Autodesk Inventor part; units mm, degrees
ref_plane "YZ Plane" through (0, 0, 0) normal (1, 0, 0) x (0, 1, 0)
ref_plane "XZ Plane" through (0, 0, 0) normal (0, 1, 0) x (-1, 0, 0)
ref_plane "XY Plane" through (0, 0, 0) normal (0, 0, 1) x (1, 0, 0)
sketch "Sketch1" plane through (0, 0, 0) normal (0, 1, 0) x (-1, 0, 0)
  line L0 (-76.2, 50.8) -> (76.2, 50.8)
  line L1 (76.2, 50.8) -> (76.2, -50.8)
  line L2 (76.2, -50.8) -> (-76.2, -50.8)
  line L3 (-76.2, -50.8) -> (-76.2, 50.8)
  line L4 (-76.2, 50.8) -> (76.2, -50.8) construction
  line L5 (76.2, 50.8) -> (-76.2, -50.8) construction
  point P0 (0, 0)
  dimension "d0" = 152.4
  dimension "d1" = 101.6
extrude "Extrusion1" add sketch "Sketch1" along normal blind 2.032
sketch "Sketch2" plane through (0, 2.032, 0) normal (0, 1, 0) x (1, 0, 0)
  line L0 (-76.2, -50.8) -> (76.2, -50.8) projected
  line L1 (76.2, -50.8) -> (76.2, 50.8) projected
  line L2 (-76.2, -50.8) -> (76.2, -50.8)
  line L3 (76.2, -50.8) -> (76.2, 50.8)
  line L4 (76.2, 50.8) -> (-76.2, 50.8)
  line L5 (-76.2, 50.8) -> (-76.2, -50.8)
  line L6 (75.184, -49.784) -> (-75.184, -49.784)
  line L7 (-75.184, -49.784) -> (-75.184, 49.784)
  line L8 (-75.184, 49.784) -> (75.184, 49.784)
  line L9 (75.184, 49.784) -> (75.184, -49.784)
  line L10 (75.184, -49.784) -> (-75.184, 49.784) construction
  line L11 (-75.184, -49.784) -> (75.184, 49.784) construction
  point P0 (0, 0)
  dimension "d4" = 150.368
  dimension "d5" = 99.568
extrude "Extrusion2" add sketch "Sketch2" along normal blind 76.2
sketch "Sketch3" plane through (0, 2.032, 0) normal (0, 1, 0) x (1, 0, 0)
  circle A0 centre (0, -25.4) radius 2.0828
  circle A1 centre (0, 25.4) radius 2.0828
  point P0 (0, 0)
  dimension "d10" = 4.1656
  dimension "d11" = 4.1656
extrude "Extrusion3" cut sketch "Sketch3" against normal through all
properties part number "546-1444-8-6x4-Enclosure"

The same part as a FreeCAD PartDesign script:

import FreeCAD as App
import Part
import Sketcher
from FreeCAD import Vector
Q = App.Units.Quantity

doc = App.newDocument("Part")
body = doc.addObject("PartDesign::Body", "Body")

sketch1 = body.newObject("Sketcher::SketchObject", "Sketch")
sketch1.AttachmentSupport = (doc.getObject("XZ_Plane"), [""])
sketch1.MapMode = "FlatFace"
sketch1.addGeometry([
    Part.LineSegment(Vector(-76.2, 50.8, 0), Vector(76.2, 50.8, 0)),
    Part.LineSegment(Vector(76.2, 50.8, 0), Vector(76.2, -50.8, 0)),
    Part.LineSegment(Vector(76.2, -50.8, 0), Vector(-76.2, -50.8, 0)),
    Part.LineSegment(Vector(-76.2, -50.8, 0), Vector(-76.2, 50.8, 0)),
], False)
sketch1.addConstraint([
    Sketcher.Constraint("Coincident", 0, 2, 1, 1),
    Sketcher.Constraint("Coincident", 1, 2, 2, 1),
    Sketcher.Constraint("Coincident", 2, 2, 3, 1),
    Sketcher.Constraint("Coincident", 3, 2, 0, 1),
    Sketcher.Constraint("Horizontal", 0),
    Sketcher.Constraint("Vertical", 1),
    Sketcher.Constraint("Horizontal", 2),
    Sketcher.Constraint("Vertical", 3),
    Sketcher.Constraint("Symmetric", 0, 2, 2, 2, -1, 1),
    Sketcher.Constraint("DistanceX", 0, 1, 0, 2, Q("6 in")),
    Sketcher.Constraint("DistanceY", 1, 2, 1, 1, Q("4 in")),
])
pad1 = body.newObject("PartDesign::Pad", "Pad")
pad1.Profile = sketch1
pad1.Length = Q("0.08 in")
pad1.Reversed = True

sketch2 = body.newObject("Sketcher::SketchObject", "Sketch001")
sketch2.AttachmentSupport = (doc.getObject("XZ_Plane"), [""])
sketch2.MapMode = "FlatFace"
sketch2.AttachmentOffset = App.Placement(Vector(0, 0, -0.08 * 25.4), App.Rotation())
sketch2.addGeometry([
    Part.LineSegment(Vector(-76.2, -50.8, 0), Vector(-76.2, 50.8, 0)),
    Part.LineSegment(Vector(-76.2, 50.8, 0), Vector(76.2, 50.8, 0)),
    Part.LineSegment(Vector(76.2, 50.8, 0), Vector(76.2, -50.8, 0)),
    Part.LineSegment(Vector(76.2, -50.8, 0), Vector(-76.2, -50.8, 0)),
    Part.LineSegment(Vector(75.184, -49.784, 0), Vector(75.184, 49.784, 0)),
    Part.LineSegment(Vector(75.184, 49.784, 0), Vector(-75.184, 49.784, 0)),
    Part.LineSegment(Vector(-75.184, 49.784, 0), Vector(-75.184, -49.784, 0)),
    Part.LineSegment(Vector(-75.184, -49.784, 0), Vector(75.184, -49.784, 0)),
], False)
sketch2.addConstraint([
    Sketcher.Constraint("Coincident", 0, 2, 1, 1),
    Sketcher.Constraint("Coincident", 1, 2, 2, 1),
    Sketcher.Constraint("Coincident", 2, 2, 3, 1),
    Sketcher.Constraint("Coincident", 3, 2, 0, 1),
    Sketcher.Constraint("Coincident", 4, 2, 5, 1),
    Sketcher.Constraint("Coincident", 5, 2, 6, 1),
    Sketcher.Constraint("Coincident", 6, 2, 7, 1),
    Sketcher.Constraint("Coincident", 7, 2, 4, 1),
    Sketcher.Constraint("Vertical", 0),
    Sketcher.Constraint("Horizontal", 1),
    Sketcher.Constraint("Vertical", 2),
    Sketcher.Constraint("Horizontal", 3),
    Sketcher.Constraint("Vertical", 4),
    Sketcher.Constraint("Horizontal", 5),
    Sketcher.Constraint("Vertical", 6),
    Sketcher.Constraint("Horizontal", 7),
    Sketcher.Constraint("Symmetric", 0, 2, 2, 2, -1, 1),
    Sketcher.Constraint("Symmetric", 4, 2, 6, 2, -1, 1),
    Sketcher.Constraint("DistanceX", 5, 2, 5, 1, Q("5.92 in")),
    Sketcher.Constraint("DistanceY", 4, 1, 4, 2, Q("3.92 in")),
    Sketcher.Constraint("DistanceX", 1, 1, 1, 2, Q("6 in")),
    Sketcher.Constraint("DistanceY", 0, 1, 0, 2, Q("4 in")),
])
pad2 = body.newObject("PartDesign::Pad", "Pad001")
pad2.Profile = sketch2
pad2.Length = Q("3 in")
pad2.Reversed = True

sketch3 = body.newObject("Sketcher::SketchObject", "Sketch002")
sketch3.AttachmentSupport = (doc.getObject("XZ_Plane"), [""])
sketch3.MapMode = "FlatFace"
sketch3.AttachmentOffset = App.Placement(Vector(0, 0, -0.08 * 25.4), App.Rotation())
sketch3.addGeometry([
    Part.Circle(Vector(0, 25.4, 0), Vector(0, 0, 1), 2.0828),
    Part.Circle(Vector(0, -25.4, 0), Vector(0, 0, 1), 2.0828),
], False)
sketch3.addConstraint([
    Sketcher.Constraint("Equal", 0, 1),
    Sketcher.Constraint("Symmetric", 0, 3, 1, 3, -1, 1),
    Sketcher.Constraint("PointOnObject", 0, 3, -2),
    Sketcher.Constraint("Diameter", 0, Q("0.164 in")),
    Sketcher.Constraint("DistanceY", -1, 1, 0, 3, Q("1 in")),
])
pocket1 = body.newObject("PartDesign::Pocket", "Pocket")
pocket1.Profile = sketch3
pocket1.Type = "ThroughAll"
pocket1.Reversed = True

doc.recompute()
